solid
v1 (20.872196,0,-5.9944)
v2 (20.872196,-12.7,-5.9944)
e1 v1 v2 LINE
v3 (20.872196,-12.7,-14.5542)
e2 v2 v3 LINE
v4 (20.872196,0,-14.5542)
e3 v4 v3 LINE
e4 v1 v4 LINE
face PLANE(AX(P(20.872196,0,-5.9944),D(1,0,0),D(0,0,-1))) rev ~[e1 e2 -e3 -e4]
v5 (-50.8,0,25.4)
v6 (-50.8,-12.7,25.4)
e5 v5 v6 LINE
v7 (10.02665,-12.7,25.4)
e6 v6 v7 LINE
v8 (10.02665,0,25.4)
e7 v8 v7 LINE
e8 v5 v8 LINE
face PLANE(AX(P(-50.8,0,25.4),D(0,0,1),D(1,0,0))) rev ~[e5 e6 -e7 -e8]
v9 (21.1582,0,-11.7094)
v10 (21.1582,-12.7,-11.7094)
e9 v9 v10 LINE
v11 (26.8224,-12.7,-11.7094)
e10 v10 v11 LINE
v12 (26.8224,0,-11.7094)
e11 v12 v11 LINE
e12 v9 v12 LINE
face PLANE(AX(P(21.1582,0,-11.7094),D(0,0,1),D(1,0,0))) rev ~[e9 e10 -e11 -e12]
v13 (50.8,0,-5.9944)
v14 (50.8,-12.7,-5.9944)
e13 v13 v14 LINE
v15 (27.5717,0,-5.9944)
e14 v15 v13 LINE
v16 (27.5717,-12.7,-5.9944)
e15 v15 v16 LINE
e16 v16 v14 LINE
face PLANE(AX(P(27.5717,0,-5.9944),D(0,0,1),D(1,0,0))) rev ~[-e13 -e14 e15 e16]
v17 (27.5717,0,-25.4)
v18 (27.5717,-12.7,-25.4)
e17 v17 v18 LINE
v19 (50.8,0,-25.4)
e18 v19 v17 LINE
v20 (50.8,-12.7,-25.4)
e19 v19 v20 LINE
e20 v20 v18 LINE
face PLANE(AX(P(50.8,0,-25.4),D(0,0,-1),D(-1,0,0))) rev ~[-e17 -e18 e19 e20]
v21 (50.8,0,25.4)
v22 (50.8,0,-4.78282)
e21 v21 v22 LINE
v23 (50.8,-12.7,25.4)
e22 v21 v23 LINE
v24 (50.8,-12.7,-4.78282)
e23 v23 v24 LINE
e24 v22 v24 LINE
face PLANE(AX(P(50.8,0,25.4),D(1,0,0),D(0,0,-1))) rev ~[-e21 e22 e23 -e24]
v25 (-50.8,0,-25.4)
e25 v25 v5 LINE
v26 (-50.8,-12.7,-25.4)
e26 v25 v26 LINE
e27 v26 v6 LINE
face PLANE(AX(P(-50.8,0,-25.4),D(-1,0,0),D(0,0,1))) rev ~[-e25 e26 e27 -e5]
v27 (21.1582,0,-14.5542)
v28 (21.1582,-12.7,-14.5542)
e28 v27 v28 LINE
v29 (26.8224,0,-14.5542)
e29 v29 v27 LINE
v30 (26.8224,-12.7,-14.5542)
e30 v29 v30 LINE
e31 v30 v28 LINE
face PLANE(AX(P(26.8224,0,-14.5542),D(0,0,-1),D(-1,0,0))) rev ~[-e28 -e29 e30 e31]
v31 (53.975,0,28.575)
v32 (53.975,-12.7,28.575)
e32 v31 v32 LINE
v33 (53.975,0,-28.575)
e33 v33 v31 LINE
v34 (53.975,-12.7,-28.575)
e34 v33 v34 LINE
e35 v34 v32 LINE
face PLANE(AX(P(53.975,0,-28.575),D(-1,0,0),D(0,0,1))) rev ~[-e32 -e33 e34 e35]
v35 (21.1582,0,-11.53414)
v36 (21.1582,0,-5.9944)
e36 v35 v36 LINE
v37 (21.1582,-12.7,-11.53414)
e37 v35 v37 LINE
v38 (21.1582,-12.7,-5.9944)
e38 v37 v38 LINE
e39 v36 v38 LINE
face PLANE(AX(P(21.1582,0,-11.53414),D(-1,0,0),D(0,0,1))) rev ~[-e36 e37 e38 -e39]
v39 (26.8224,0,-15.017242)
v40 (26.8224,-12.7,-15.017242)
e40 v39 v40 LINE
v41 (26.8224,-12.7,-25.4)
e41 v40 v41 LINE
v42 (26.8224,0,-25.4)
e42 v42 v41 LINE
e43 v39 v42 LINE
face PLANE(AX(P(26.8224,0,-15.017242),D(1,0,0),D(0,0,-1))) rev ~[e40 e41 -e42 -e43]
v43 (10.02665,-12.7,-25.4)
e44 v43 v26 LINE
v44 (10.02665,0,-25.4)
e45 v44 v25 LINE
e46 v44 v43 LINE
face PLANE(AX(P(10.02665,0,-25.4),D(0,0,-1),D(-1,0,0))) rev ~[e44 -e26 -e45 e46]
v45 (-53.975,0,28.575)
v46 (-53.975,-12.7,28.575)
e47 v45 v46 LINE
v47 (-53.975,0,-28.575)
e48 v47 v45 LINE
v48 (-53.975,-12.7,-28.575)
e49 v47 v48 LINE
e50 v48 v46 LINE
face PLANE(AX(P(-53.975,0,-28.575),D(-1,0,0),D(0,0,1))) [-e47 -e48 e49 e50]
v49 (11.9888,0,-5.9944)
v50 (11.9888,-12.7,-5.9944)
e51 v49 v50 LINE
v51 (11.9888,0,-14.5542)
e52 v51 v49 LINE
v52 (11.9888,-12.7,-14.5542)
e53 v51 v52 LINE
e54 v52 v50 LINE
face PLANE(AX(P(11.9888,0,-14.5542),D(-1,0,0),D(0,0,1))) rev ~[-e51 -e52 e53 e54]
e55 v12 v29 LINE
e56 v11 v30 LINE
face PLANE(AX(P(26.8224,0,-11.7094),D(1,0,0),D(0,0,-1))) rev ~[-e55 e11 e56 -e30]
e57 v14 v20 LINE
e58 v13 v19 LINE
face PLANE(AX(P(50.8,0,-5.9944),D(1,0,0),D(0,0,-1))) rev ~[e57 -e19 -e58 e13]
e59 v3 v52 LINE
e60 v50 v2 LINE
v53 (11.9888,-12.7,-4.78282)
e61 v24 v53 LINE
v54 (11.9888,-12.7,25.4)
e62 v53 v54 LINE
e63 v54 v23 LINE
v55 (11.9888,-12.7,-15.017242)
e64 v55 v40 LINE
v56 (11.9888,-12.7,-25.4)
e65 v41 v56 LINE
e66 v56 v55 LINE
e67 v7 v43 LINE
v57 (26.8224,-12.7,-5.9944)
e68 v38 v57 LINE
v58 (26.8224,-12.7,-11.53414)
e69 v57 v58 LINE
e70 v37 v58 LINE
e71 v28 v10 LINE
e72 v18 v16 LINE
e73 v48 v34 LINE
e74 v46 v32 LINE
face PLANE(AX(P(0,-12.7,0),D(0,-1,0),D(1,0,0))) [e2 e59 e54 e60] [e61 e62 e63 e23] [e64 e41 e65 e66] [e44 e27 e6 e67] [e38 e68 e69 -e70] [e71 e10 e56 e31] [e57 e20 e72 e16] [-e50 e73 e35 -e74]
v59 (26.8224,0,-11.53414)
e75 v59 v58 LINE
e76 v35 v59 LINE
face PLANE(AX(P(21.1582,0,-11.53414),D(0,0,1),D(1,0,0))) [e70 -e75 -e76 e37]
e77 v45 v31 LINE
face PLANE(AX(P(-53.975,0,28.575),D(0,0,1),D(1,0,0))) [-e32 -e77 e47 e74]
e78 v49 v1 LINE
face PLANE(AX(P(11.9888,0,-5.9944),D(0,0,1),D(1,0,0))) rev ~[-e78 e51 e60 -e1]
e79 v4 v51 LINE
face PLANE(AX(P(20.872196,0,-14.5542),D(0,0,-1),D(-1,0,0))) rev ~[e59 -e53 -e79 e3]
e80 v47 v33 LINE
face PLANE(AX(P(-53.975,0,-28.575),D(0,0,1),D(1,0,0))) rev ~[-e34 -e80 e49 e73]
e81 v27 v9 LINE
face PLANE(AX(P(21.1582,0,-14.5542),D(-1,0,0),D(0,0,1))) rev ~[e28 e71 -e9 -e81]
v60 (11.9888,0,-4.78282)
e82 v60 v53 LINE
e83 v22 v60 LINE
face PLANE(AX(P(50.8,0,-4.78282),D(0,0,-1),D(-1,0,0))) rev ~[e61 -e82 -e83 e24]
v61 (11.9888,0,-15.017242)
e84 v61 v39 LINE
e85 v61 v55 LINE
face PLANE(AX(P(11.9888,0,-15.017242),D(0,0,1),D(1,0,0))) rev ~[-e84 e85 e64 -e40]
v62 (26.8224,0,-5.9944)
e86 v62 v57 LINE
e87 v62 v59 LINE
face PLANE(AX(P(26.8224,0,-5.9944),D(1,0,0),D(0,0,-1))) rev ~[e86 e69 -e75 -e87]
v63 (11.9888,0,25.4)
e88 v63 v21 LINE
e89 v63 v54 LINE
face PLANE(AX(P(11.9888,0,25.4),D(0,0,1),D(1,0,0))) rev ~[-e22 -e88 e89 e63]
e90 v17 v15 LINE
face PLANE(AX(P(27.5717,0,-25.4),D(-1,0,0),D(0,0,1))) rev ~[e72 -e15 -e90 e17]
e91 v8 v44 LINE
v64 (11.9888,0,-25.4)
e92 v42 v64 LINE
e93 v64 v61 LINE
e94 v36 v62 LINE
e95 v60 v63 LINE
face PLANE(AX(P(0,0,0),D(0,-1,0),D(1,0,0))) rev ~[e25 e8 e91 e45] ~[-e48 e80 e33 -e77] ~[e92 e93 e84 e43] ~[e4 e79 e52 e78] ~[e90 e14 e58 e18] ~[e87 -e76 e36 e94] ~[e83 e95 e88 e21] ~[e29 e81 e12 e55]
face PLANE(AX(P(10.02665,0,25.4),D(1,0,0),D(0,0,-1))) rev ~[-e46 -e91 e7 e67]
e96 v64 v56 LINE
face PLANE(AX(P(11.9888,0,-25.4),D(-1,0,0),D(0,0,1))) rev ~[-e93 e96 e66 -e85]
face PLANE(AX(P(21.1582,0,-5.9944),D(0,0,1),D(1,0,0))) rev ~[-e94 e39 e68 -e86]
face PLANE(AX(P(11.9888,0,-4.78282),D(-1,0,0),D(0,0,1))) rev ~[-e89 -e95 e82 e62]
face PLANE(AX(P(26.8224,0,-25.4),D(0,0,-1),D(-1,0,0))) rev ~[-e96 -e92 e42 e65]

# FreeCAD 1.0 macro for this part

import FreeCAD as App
import Part
import Sketcher
Q = App.Units.Quantity


def add_polygon(sketch, points):
    """Adds a closed chain of lines whose ends are joined by coincident constraints."""
    first, n = sketch.GeometryCount, len(points)
    for a, b in zip(points, points[1:] + points[:1]):
        sketch.addGeometry(Part.LineSegment(App.Vector(*a, 0), App.Vector(*b, 0)), False)
    for i in range(n):
        sketch.addConstraint(Sketcher.Constraint("Coincident", first + i, 2, first + (i + 1) % n, 1))

doc = App.newDocument("Part")
body = doc.addObject("PartDesign::Body", "Body")

# Sketch on XZ plane
sketch1 = body.newObject("Sketcher::SketchObject", "Sketch")
sketch1.AttachmentSupport = (doc.getObject("XZ_Plane"), [""])
sketch1.MapMode = "FlatFace"
add_polygon(sketch1, [(-53.975, 28.575), (-53.975, -28.575), (53.975, -28.575), (53.975, 28.575)])  # lines 0-3
add_polygon(sketch1, [(50.8, 25.4), (50.8, -4.78282), (11.9888, -4.78282), (11.9888, 25.4)])  # lines 4-7
add_polygon(sketch1, [(50.8, -5.9944), (50.8, -25.4), (27.5717, -25.4), (27.5717, -5.9944)])  # lines 8-11
add_polygon(sketch1, [(26.8224, -25.4), (11.9888, -25.4), (11.9888, -15.017242), (26.8224, -15.017242)])  # lines 12-15
add_polygon(sketch1, [(11.9888, -14.5542), (11.9888, -5.9944), (20.872196, -5.9944), (20.872196, -14.5542)])  # lines 16-19
add_polygon(sketch1, [(21.1582, -5.9944), (26.8224, -5.9944), (26.8224, -11.53414), (21.1582, -11.53414)])  # lines 20-23
add_polygon(sketch1, [(26.8224, -11.7094), (26.8224, -14.5542), (21.1582, -14.5542), (21.1582, -11.7094)])  # lines 24-27
add_polygon(sketch1, [(10.02665, -25.4), (-50.8, -25.4), (-50.8, 25.4), (10.02665, 25.4)])  # lines 28-31
sketch1.addConstraint(Sketcher.Constraint("Vertical", 0))
sketch1.addConstraint(Sketcher.Constraint("Horizontal", 1))
sketch1.addConstraint(Sketcher.Constraint("Vertical", 2))
sketch1.addConstraint(Sketcher.Constraint("Horizontal", 3))
sketch1.addConstraint(Sketcher.Constraint("Vertical", 4))
sketch1.addConstraint(Sketcher.Constraint("Horizontal", 5))
sketch1.addConstraint(Sketcher.Constraint("Vertical", 6))
sketch1.addConstraint(Sketcher.Constraint("Horizontal", 7))
sketch1.addConstraint(Sketcher.Constraint("Vertical", 8))
sketch1.addConstraint(Sketcher.Constraint("Horizontal", 9))
sketch1.addConstraint(Sketcher.Constraint("Vertical", 10))
sketch1.addConstraint(Sketcher.Constraint("Horizontal", 11))
sketch1.addConstraint(Sketcher.Constraint("Horizontal", 12))
sketch1.addConstraint(Sketcher.Constraint("Vertical", 13))
sketch1.addConstraint(Sketcher.Constraint("Horizontal", 14))
sketch1.addConstraint(Sketcher.Constraint("Vertical", 15))
sketch1.addConstraint(Sketcher.Constraint("Vertical", 16))
sketch1.addConstraint(Sketcher.Constraint("Horizontal", 17))
sketch1.addConstraint(Sketcher.Constraint("Vertical", 18))
sketch1.addConstraint(Sketcher.Constraint("Horizontal", 19))
sketch1.addConstraint(Sketcher.Constraint("Horizontal", 20))
sketch1.addConstraint(Sketcher.Constraint("Vertical", 21))
sketch1.addConstraint(Sketcher.Constraint("Horizontal", 22))
sketch1.addConstraint(Sketcher.Constraint("Vertical", 23))
sketch1.addConstraint(Sketcher.Constraint("Vertical", 24))
sketch1.addConstraint(Sketcher.Constraint("Horizontal", 25))
sketch1.addConstraint(Sketcher.Constraint("Vertical", 26))
sketch1.addConstraint(Sketcher.Constraint("Horizontal", 27))
sketch1.addConstraint(Sketcher.Constraint("Horizontal", 28))
sketch1.addConstraint(Sketcher.Constraint("Vertical", 29))
sketch1.addConstraint(Sketcher.Constraint("Horizontal", 30))
sketch1.addConstraint(Sketcher.Constraint("Vertical", 31))
sketch1.addConstraint(Sketcher.Constraint("Symmetric", 0, 2, 2, 2, -1, 1))
sketch1.addConstraint(Sketcher.Constraint("Symmetric", 7, 2, 28, 2, -1, 1))
sketch1.addConstraint(Sketcher.Constraint("Symmetric", 8, 2, 29, 2, -1, 1))
sketch1.addConstraint(Sketcher.Constraint("Symmetric", 6, 2, 12, 2, -1))
sketch1.addConstraint(Sketcher.Constraint("Horizontal", 9, 2, 12, 2))
sketch1.addConstraint(Sketcher.Constraint("Horizontal", 11, 2, 16, 2))
sketch1.addConstraint(Sketcher.Constraint("Horizontal", 17, 2, 20, 2))
sketch1.addConstraint(Sketcher.Constraint("Horizontal", 19, 2, 24, 2))
sketch1.addConstraint(Sketcher.Constraint("Vertical", 13, 2, 16, 2))
sketch1.addConstraint(Sketcher.Constraint("Vertical", 15, 2, 20, 2))
sketch1.addConstraint(Sketcher.Constraint("Vertical", 21, 2, 24, 2))
sketch1.addConstraint(Sketcher.Constraint("Vertical", 23, 2, 25, 2))
sketch1.addConstraint(Sketcher.Constraint("DistanceY", 29, 1, 29, 2, Q("2 in")))
sketch1.addConstraint(Sketcher.Constraint("DistanceX", -1, 1, 4, 2, Q("2 in")))
sketch1.addConstraint(Sketcher.Constraint("DistanceX", 1, 1, 1, 2, Q("4.25 in")))
sketch1.addConstraint(Sketcher.Constraint("DistanceY", 0, 2, 0, 1, Q("2.25 in")))
sketch1.addConstraint(Sketcher.Constraint("DistanceX", 5, 2, 5, 1, Q("1.528 in")))
sketch1.addConstraint(Sketcher.Constraint("DistanceX", 12, 2, 12, 1, Q("0.584 in")))
sketch1.addConstraint(Sketcher.Constraint("DistanceX", 20, 1, 20, 2, Q("0.223 in")))
sketch1.addConstraint(Sketcher.Constraint("DistanceY", 8, 2, 8, 1, Q("0.764 in")))
sketch1.addConstraint(Sketcher.Constraint("DistanceY", 16, 1, 16, 2, Q("0.337 in")))
sketch1.addConstraint(Sketcher.Constraint("DistanceY", 24, 2, 24, 1, Q("0.112 in")))
sketch1.addConstraint(Sketcher.Constraint("DistanceX", 9, 2, 9, 1, Q("0.9145 in")))
sketch1.addConstraint(Sketcher.Constraint("DistanceY", 4, 2, 4, 1, Q("1.1883 in")))
sketch1.addConstraint(Sketcher.Constraint("DistanceY", 21, 2, 21, 1, Q("0.2181 in")))
sketch1.addConstraint(Sketcher.Constraint("DistanceX", 28, 2, 28, 1, Q("60.82665 mm")))
sketch1.addConstraint(Sketcher.Constraint("DistanceY", 14, 2, 21, 2, Q("3.483102 mm")))
sketch1.addConstraint(Sketcher.Constraint("DistanceX", 17, 1, 17, 2, Q("8.883396 mm")))
pad1 = body.newObject("PartDesign::Pad", "Pad")
pad1.Profile = sketch1
pad1.Length = Q("0.5 in")

doc.recompute()
